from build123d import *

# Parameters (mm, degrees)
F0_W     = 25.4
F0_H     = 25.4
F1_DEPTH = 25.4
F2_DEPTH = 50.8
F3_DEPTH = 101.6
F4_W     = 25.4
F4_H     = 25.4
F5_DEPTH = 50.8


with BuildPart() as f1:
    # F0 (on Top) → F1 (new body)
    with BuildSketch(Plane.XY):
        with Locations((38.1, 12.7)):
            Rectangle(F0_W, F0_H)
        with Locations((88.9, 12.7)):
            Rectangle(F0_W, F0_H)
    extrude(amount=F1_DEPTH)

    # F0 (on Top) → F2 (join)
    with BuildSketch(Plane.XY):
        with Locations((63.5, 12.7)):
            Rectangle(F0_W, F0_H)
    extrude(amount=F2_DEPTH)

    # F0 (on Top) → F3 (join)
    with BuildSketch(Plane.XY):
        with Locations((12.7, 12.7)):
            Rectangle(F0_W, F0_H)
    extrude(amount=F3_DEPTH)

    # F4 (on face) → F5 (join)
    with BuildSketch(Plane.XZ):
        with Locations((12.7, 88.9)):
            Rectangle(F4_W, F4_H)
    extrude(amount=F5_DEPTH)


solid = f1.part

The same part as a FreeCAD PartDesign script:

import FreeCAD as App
import Part
import Sketcher
Q = App.Units.Quantity

doc = App.newDocument("Part")
body = doc.addObject("PartDesign::Body", "Body")
body.AllowCompound = True

sketch1 = body.newObject("Sketcher::SketchObject", "Sketch")
sketch1.AttachmentSupport = (doc.getObject("XY_Plane"), [""])
sketch1.MapMode = "FlatFace"
sketch1.addGeometry([
    Part.LineSegment(App.Vector(25.4, 25.4, 0), App.Vector(25.4, 0, 0)),
    Part.LineSegment(App.Vector(25.4, 0, 0), App.Vector(50.8, 0, 0)),
    Part.LineSegment(App.Vector(50.8, 0, 0), App.Vector(50.8, 25.4, 0)),
    Part.LineSegment(App.Vector(50.8, 25.4, 0), App.Vector(25.4, 25.4, 0)),
    Part.LineSegment(App.Vector(76.2, 25.4, 0), App.Vector(76.2, 0, 0)),
    Part.LineSegment(App.Vector(76.2, 0, 0), App.Vector(101.6, 0, 0)),
    Part.LineSegment(App.Vector(101.6, 0, 0), App.Vector(101.6, 25.4, 0)),
    Part.LineSegment(App.Vector(101.6, 25.4, 0), App.Vector(76.2, 25.4, 0)),
], False)
sketch1.addConstraint([
    Sketcher.Constraint("Coincident", 0, 2, 1, 1),
    Sketcher.Constraint("Coincident", 1, 2, 2, 1),
    Sketcher.Constraint("Coincident", 2, 2, 3, 1),
    Sketcher.Constraint("Coincident", 3, 2, 0, 1),
    Sketcher.Constraint("Coincident", 4, 2, 5, 1),
    Sketcher.Constraint("Coincident", 5, 2, 6, 1),
    Sketcher.Constraint("Coincident", 6, 2, 7, 1),
    Sketcher.Constraint("Coincident", 7, 2, 4, 1),
    Sketcher.Constraint("Vertical", 0),
    Sketcher.Constraint("Horizontal", 1),
    Sketcher.Constraint("Vertical", 2),
    Sketcher.Constraint("Horizontal", 3),
    Sketcher.Constraint("Vertical", 4),
    Sketcher.Constraint("Horizontal", 5),
    Sketcher.Constraint("Vertical", 6),
    Sketcher.Constraint("Horizontal", 7),
    Sketcher.Constraint("PointOnObject", 0, 2, -1),
    Sketcher.Constraint("PointOnObject", 4, 2, -1),
    Sketcher.Constraint("Horizontal", 3, 2, 6, 2),
    Sketcher.Constraint("Equal", 3, 5),
    Sketcher.Constraint("Equal", 7, 0),
    Sketcher.Constraint("DistanceX", 1, 1, 1, 2, Q("1 in")),
    Sketcher.Constraint("DistanceX", -1, 1, 0, 2, Q("1 in")),
    Sketcher.Constraint("DistanceX", -1, 1, 4, 2, Q("3 in")),
])
pad1 = body.newObject("PartDesign::Pad", "Pad")
pad1.Profile = sketch1
pad1.Length = Q("1 in")

sketch2 = body.newObject("Sketcher::SketchObject", "Sketch001")
sketch2.AttachmentSupport = (doc.getObject("XY_Plane"), [""])
sketch2.MapMode = "FlatFace"
sketch2.addGeometry([
    Part.LineSegment(App.Vector(50.8, 25.4, 0), App.Vector(50.8, 0, 0)),
    Part.LineSegment(App.Vector(50.8, 0, 0), App.Vector(76.2, 0, 0)),
    Part.LineSegment(App.Vector(76.2, 0, 0), App.Vector(76.2, 25.4, 0)),
    Part.LineSegment(App.Vector(76.2, 25.4, 0), App.Vector(50.8, 25.4, 0)),
], False)
sketch2.addConstraint([
    Sketcher.Constraint("Coincident", 0, 2, 1, 1),
    Sketcher.Constraint("Coincident", 1, 2, 2, 1),
    Sketcher.Constraint("Coincident", 2, 2, 3, 1),
    Sketcher.Constraint("Coincident", 3, 2, 0, 1),
    Sketcher.Constraint("Vertical", 0),
    Sketcher.Constraint("Horizontal", 1),
    Sketcher.Constraint("Vertical", 2),
    Sketcher.Constraint("Horizontal", 3),
    Sketcher.Constraint("PointOnObject", 0, 2, -1),
    Sketcher.Constraint("Equal", 3, 0),
    Sketcher.Constraint("DistanceX", 1, 1, 1, 2, Q("1 in")),
    Sketcher.Constraint("DistanceX", -1, 1, 0, 2, Q("2 in")),
])
pad2 = body.newObject("PartDesign::Pad", "Pad001")
pad2.Profile = sketch2
pad2.Length = Q("2 in")

sketch3 = body.newObject("Sketcher::SketchObject", "Sketch002")
sketch3.AttachmentSupport = (doc.getObject("XY_Plane"), [""])
sketch3.MapMode = "FlatFace"
sketch3.addGeometry([
    Part.LineSegment(App.Vector(0, 25.4, 0), App.Vector(0, 0, 0)),
    Part.LineSegment(App.Vector(0, 0, 0), App.Vector(25.4, 0, 0)),
    Part.LineSegment(App.Vector(25.4, 0, 0), App.Vector(25.4, 25.4, 0)),
    Part.LineSegment(App.Vector(25.4, 25.4, 0), App.Vector(0, 25.4, 0)),
], False)
sketch3.addConstraint([
    Sketcher.Constraint("Coincident", 0, 2, 1, 1),
    Sketcher.Constraint("Coincident", 1, 2, 2, 1),
    Sketcher.Constraint("Coincident", 2, 2, 3, 1),
    Sketcher.Constraint("Coincident", 3, 2, 0, 1),
    Sketcher.Constraint("Vertical", 0),
    Sketcher.Constraint("Horizontal", 1),
    Sketcher.Constraint("Vertical", 2),
    Sketcher.Constraint("Horizontal", 3),
    Sketcher.Constraint("Coincident", 0, 2, -1, 1),
    Sketcher.Constraint("Equal", 3, 0),
    Sketcher.Constraint("DistanceX", 1, 1, 1, 2, Q("1 in")),
])
pad3 = body.newObject("PartDesign::Pad", "Pad002")
pad3.Profile = sketch3
pad3.Length = Q("4 in")

sketch4 = body.newObject("Sketcher::SketchObject", "Sketch003")
sketch4.AttachmentSupport = (doc.getObject("XZ_Plane"), [""])
sketch4.MapMode = "FlatFace"
sketch4.addGeometry([
    Part.LineSegment(App.Vector(0, 101.6, 0), App.Vector(0, 76.2, 0)),
    Part.LineSegment(App.Vector(0, 76.2, 0), App.Vector(25.4, 76.2, 0)),
    Part.LineSegment(App.Vector(25.4, 76.2, 0), App.Vector(25.4, 101.6, 0)),
    Part.LineSegment(App.Vector(25.4, 101.6, 0), App.Vector(0, 101.6, 0)),
], False)
sketch4.addConstraint([
    Sketcher.Constraint("Coincident", 0, 2, 1, 1),
    Sketcher.Constraint("Coincident", 1, 2, 2, 1),
    Sketcher.Constraint("Coincident", 2, 2, 3, 1),
    Sketcher.Constraint("Coincident", 3, 2, 0, 1),
    Sketcher.Constraint("Vertical", 0),
    Sketcher.Constraint("Horizontal", 1),
    Sketcher.Constraint("Vertical", 2),
    Sketcher.Constraint("Horizontal", 3),
    Sketcher.Constraint("PointOnObject", 0, 2, -2),
    Sketcher.Constraint("Equal", 3, 0),
    Sketcher.Constraint("DistanceX", 1, 1, 1, 2, Q("1 in")),
    Sketcher.Constraint("DistanceY", -1, 1, 0, 2, Q("3 in")),
])
pad4 = body.newObject("PartDesign::Pad", "Pad003")
pad4.Profile = sketch4
pad4.Length = Q("2 in")

doc.recompute()
